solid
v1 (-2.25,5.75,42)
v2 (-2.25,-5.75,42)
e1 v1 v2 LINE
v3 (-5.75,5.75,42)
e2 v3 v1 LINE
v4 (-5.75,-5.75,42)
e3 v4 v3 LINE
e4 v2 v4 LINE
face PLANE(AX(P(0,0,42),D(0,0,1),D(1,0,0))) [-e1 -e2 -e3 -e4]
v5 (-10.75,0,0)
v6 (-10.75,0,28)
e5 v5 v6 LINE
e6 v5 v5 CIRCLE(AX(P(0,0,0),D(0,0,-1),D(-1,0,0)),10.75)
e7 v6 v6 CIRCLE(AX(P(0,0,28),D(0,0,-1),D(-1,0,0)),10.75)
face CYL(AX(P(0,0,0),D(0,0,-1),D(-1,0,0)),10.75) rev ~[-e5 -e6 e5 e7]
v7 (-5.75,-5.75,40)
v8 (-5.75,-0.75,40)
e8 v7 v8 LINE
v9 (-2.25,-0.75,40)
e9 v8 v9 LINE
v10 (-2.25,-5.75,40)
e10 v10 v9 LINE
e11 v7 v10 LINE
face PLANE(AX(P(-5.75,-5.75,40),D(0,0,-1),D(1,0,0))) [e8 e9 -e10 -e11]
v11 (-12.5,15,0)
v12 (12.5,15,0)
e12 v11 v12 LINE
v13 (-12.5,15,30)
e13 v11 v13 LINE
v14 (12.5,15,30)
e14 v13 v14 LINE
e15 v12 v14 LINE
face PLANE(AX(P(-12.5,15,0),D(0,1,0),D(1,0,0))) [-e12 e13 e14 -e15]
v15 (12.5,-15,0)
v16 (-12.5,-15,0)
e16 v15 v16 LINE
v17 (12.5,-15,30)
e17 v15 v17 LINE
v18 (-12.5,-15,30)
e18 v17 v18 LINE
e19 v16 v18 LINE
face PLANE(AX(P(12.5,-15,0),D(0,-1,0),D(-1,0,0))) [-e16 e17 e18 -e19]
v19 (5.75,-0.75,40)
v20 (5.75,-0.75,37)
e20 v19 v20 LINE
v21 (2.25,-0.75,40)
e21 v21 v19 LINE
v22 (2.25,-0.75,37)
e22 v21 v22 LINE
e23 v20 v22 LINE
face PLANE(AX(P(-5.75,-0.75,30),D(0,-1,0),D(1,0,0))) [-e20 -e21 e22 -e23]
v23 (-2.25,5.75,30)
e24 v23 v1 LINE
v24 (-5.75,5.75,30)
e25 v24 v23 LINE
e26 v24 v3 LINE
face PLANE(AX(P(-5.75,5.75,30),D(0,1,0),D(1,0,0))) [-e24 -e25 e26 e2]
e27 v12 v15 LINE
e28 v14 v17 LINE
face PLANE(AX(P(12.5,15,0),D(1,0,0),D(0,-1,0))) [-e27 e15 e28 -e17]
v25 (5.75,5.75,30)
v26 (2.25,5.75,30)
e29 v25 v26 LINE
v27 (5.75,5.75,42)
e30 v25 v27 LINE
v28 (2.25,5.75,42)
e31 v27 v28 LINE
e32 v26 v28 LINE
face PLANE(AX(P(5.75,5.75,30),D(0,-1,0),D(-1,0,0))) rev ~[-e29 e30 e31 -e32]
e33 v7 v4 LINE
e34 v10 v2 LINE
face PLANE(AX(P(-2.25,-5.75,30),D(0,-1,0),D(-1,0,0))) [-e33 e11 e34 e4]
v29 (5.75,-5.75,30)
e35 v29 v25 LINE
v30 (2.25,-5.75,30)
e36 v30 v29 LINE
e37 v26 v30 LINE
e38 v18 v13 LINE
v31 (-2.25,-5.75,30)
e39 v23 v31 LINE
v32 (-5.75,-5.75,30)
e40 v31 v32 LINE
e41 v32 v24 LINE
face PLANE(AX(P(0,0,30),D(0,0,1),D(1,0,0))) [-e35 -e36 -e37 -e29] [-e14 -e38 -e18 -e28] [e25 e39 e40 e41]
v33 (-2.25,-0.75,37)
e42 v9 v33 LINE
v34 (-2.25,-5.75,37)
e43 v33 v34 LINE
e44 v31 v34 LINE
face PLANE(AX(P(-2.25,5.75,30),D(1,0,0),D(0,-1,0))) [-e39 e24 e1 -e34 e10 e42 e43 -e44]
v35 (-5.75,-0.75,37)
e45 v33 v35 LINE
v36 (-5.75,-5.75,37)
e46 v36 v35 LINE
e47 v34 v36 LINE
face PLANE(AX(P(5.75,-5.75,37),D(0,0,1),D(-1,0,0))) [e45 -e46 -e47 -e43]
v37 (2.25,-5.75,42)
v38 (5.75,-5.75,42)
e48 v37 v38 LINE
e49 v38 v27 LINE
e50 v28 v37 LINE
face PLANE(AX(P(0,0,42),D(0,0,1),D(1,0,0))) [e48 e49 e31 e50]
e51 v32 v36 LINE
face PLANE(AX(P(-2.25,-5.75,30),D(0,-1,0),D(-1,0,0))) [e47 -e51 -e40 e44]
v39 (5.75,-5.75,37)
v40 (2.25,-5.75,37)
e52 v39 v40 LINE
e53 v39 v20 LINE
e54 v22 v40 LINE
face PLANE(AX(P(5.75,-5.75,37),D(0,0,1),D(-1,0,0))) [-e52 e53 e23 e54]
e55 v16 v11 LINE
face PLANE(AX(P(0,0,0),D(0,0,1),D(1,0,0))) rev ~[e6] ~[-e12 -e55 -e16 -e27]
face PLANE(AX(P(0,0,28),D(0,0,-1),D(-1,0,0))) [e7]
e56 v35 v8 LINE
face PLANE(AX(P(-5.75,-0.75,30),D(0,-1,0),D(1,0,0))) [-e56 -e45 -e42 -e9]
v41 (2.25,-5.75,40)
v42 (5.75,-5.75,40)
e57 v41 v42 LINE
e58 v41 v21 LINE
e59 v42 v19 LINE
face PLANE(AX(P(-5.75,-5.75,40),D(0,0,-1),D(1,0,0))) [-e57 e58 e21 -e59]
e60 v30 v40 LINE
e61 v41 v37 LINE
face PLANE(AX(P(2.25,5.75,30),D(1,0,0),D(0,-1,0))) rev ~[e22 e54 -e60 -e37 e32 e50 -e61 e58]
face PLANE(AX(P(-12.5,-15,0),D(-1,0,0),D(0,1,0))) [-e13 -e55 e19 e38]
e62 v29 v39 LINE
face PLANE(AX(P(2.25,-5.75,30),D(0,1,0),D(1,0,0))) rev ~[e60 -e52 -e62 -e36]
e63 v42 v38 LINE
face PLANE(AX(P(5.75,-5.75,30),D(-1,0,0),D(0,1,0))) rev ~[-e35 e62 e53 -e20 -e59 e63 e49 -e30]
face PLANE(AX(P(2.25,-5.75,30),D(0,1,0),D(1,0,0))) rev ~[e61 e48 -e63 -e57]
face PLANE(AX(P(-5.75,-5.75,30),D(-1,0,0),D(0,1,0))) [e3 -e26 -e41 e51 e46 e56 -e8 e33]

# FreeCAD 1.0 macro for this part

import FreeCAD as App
import Part
import Sketcher
from FreeCAD import Vector
Q = App.Units.Quantity

doc = App.newDocument("Part")
body = doc.addObject("PartDesign::Body", "Body")

# Sketch on XY plane
sketch1 = doc.addObject("Sketcher::SketchObject", "Sketch")
body.addObject(sketch1)
sketch1.AttachmentSupport = (doc.XY_Plane, [""])
sketch1.MapMode = "FlatFace"
sketch1.addGeometry([
    Part.LineSegment(Vector(12, 15, 0), Vector(-12, 15, 0)),
    Part.LineSegment(Vector(-12, 15, 0), Vector(-12, -15, 0)),
    Part.LineSegment(Vector(-12, -15, 0), Vector(12, -15, 0)),
    Part.LineSegment(Vector(12, -15, 0), Vector(12, 15, 0)),
], False)
sketch1.addConstraint([
    Sketcher.Constraint("Coincident", 0, 2, 1, 1),
    Sketcher.Constraint("Coincident", 1, 2, 2, 1),
    Sketcher.Constraint("Coincident", 2, 2, 3, 1),
    Sketcher.Constraint("Coincident", 3, 2, 0, 1),
    Sketcher.Constraint("Horizontal", 0),
    Sketcher.Constraint("Vertical", 1),
    Sketcher.Constraint("Horizontal", 2),
    Sketcher.Constraint("Vertical", 3),
    Sketcher.Constraint("Symmetric", 0, 2, 2, 2, -1, 1),
    Sketcher.Constraint("DistanceX", 0, 2, 0, 1, Q("25 mm")),
    Sketcher.Constraint("DistanceY", 1, 2, 1, 1, Q("30 mm")),
])
pad1 = doc.addObject("PartDesign::Pad", "Pad")
body.addObject(pad1)
pad1.Profile = sketch1
pad1.Length = 30

# Sketch on XY plane
sketch2 = doc.addObject("Sketcher::SketchObject", "Sketch001")
body.addObject(sketch2)
sketch2.AttachmentSupport = (doc.XY_Plane, [""])
sketch2.MapMode = "FlatFace"
sketch2.addGeometry(Part.Circle(Vector(0, 0, 0), Vector(0, 0, 1), 11), False)
sketch2.addConstraint([
    Sketcher.Constraint("Coincident", 0, 3, -1, 1),
    Sketcher.Constraint("Diameter", 0, Q("21.5 mm")),
])
pocket1 = doc.addObject("PartDesign::Pocket", "Pocket")
body.addObject(pocket1)
pocket1.Profile = sketch2
pocket1.Length = 28
pocket1.Reversed = True

# Sketch on XY plane
sketch3 = doc.addObject("Sketcher::SketchObject", "Sketch002")
body.addObject(sketch3)
sketch3.AttachmentSupport = (doc.XY_Plane, [""])
sketch3.MapMode = "FlatFace"
sketch3.AttachmentOffset = App.Placement(Vector(0, 0, 30), App.Rotation())
sketch3.addGeometry([
    Part.LineSegment(Vector(5.8, -5.8, 0), Vector(5.8, 5.8, 0)),  # 0
    Part.LineSegment(Vector(5.8, 5.8, 0), Vector(2.2, 5.8, 0)),  # 1
    Part.LineSegment(Vector(2.2, 5.8, 0), Vector(2.2, -5.8, 0)),  # 2
    Part.LineSegment(Vector(2.2, -5.8, 0), Vector(5.8, -5.8, 0)),  # 3
    Part.LineSegment(Vector(-2.2, 5.8, 0), Vector(-5.8, 5.8, 0)),  # 4
    Part.LineSegment(Vector(-5.8, 5.8, 0), Vector(-5.8, -5.8, 0)),  # 5
    Part.LineSegment(Vector(-5.8, -5.8, 0), Vector(-2.2, -5.8, 0)),  # 6
    Part.LineSegment(Vector(-2.2, -5.8, 0), Vector(-2.2, 5.8, 0)),  # 7
], False)
sketch3.addConstraint([
    Sketcher.Constraint("Coincident", 0, 2, 1, 1),
    Sketcher.Constraint("Coincident", 1, 2, 2, 1),
    Sketcher.Constraint("Coincident", 2, 2, 3, 1),
    Sketcher.Constraint("Coincident", 3, 2, 0, 1),
    Sketcher.Constraint("Coincident", 4, 2, 5, 1),
    Sketcher.Constraint("Coincident", 5, 2, 6, 1),
    Sketcher.Constraint("Coincident", 6, 2, 7, 1),
    Sketcher.Constraint("Coincident", 7, 2, 4, 1),
    Sketcher.Constraint("Vertical", 0),
    Sketcher.Constraint("Horizontal", 1),
    Sketcher.Constraint("Vertical", 2),
    Sketcher.Constraint("Horizontal", 3),
    Sketcher.Constraint("Horizontal", 4),
    Sketcher.Constraint("Vertical", 5),
    Sketcher.Constraint("Horizontal", 6),
    Sketcher.Constraint("Vertical", 7),
    Sketcher.Constraint("Symmetric", 3, 2, 4, 2, -1, 1),
    Sketcher.Constraint("Symmetric", 1, 2, 6, 2, -1, 1),
    Sketcher.Constraint("Horizontal", 1, 2, 4, 2),
    Sketcher.Constraint("DistanceX", 1, 2, 1, 1, Q("3.5 mm")),
    Sketcher.Constraint("DistanceY", 0, 1, 0, 2, Q("11.5 mm")),
    Sketcher.Constraint("DistanceX", 4, 2, 0, 2, Q("11.5 mm")),
])
pad2 = doc.addObject("PartDesign::Pad", "Pad001")
body.addObject(pad2)
pad2.Profile = sketch3
pad2.Length = 12

# Sketch on XZ plane
sketch4 = doc.addObject("Sketcher::SketchObject", "Sketch003")
body.addObject(sketch4)
sketch4.AttachmentSupport = (doc.XZ_Plane, [""])
sketch4.MapMode = "FlatFace"
sketch4.AttachmentOffset = App.Placement(Vector(0, 0, 5.75), App.Rotation())
sketch4.addGeometry([
    Part.LineSegment(Vector(5.8, 40, 0), Vector(-5.8, 40, 0)),
    Part.LineSegment(Vector(-5.8, 40, 0), Vector(-5.8, 37, 0)),
    Part.LineSegment(Vector(-5.8, 37, 0), Vector(5.8, 37, 0)),
    Part.LineSegment(Vector(5.8, 37, 0), Vector(5.8, 40, 0)),
], False)
sketch4.addConstraint([
    Sketcher.Constraint("Coincident", 0, 2, 1, 1),
    Sketcher.Constraint("Coincident", 1, 2, 2, 1),
    Sketcher.Constraint("Coincident", 2, 2, 3, 1),
    Sketcher.Constraint("Coincident", 3, 2, 0, 1),
    Sketcher.Constraint("Horizontal", 0),
    Sketcher.Constraint("Vertical", 1),
    Sketcher.Constraint("Horizontal", 2),
    Sketcher.Constraint("Vertical", 3),
    Sketcher.Constraint("DistanceY", 1, 2, 1, 1, Q("3 mm")),
    Sketcher.Constraint("DistanceX", 0, 2, 0, 1, Q("11.5 mm")),
    Sketcher.Constraint("DistanceY", -1, 1, 0, 2, Q("40 mm")),
    Sketcher.Constraint("DistanceX", 0, 2, -1, 1, Q("5.75 mm")),
])
pocket2 = doc.addObject("PartDesign::Pocket", "Pocket001")
body.addObject(pocket2)
pocket2.Profile = sketch4
pocket2.Length = 5

doc.recompute()
